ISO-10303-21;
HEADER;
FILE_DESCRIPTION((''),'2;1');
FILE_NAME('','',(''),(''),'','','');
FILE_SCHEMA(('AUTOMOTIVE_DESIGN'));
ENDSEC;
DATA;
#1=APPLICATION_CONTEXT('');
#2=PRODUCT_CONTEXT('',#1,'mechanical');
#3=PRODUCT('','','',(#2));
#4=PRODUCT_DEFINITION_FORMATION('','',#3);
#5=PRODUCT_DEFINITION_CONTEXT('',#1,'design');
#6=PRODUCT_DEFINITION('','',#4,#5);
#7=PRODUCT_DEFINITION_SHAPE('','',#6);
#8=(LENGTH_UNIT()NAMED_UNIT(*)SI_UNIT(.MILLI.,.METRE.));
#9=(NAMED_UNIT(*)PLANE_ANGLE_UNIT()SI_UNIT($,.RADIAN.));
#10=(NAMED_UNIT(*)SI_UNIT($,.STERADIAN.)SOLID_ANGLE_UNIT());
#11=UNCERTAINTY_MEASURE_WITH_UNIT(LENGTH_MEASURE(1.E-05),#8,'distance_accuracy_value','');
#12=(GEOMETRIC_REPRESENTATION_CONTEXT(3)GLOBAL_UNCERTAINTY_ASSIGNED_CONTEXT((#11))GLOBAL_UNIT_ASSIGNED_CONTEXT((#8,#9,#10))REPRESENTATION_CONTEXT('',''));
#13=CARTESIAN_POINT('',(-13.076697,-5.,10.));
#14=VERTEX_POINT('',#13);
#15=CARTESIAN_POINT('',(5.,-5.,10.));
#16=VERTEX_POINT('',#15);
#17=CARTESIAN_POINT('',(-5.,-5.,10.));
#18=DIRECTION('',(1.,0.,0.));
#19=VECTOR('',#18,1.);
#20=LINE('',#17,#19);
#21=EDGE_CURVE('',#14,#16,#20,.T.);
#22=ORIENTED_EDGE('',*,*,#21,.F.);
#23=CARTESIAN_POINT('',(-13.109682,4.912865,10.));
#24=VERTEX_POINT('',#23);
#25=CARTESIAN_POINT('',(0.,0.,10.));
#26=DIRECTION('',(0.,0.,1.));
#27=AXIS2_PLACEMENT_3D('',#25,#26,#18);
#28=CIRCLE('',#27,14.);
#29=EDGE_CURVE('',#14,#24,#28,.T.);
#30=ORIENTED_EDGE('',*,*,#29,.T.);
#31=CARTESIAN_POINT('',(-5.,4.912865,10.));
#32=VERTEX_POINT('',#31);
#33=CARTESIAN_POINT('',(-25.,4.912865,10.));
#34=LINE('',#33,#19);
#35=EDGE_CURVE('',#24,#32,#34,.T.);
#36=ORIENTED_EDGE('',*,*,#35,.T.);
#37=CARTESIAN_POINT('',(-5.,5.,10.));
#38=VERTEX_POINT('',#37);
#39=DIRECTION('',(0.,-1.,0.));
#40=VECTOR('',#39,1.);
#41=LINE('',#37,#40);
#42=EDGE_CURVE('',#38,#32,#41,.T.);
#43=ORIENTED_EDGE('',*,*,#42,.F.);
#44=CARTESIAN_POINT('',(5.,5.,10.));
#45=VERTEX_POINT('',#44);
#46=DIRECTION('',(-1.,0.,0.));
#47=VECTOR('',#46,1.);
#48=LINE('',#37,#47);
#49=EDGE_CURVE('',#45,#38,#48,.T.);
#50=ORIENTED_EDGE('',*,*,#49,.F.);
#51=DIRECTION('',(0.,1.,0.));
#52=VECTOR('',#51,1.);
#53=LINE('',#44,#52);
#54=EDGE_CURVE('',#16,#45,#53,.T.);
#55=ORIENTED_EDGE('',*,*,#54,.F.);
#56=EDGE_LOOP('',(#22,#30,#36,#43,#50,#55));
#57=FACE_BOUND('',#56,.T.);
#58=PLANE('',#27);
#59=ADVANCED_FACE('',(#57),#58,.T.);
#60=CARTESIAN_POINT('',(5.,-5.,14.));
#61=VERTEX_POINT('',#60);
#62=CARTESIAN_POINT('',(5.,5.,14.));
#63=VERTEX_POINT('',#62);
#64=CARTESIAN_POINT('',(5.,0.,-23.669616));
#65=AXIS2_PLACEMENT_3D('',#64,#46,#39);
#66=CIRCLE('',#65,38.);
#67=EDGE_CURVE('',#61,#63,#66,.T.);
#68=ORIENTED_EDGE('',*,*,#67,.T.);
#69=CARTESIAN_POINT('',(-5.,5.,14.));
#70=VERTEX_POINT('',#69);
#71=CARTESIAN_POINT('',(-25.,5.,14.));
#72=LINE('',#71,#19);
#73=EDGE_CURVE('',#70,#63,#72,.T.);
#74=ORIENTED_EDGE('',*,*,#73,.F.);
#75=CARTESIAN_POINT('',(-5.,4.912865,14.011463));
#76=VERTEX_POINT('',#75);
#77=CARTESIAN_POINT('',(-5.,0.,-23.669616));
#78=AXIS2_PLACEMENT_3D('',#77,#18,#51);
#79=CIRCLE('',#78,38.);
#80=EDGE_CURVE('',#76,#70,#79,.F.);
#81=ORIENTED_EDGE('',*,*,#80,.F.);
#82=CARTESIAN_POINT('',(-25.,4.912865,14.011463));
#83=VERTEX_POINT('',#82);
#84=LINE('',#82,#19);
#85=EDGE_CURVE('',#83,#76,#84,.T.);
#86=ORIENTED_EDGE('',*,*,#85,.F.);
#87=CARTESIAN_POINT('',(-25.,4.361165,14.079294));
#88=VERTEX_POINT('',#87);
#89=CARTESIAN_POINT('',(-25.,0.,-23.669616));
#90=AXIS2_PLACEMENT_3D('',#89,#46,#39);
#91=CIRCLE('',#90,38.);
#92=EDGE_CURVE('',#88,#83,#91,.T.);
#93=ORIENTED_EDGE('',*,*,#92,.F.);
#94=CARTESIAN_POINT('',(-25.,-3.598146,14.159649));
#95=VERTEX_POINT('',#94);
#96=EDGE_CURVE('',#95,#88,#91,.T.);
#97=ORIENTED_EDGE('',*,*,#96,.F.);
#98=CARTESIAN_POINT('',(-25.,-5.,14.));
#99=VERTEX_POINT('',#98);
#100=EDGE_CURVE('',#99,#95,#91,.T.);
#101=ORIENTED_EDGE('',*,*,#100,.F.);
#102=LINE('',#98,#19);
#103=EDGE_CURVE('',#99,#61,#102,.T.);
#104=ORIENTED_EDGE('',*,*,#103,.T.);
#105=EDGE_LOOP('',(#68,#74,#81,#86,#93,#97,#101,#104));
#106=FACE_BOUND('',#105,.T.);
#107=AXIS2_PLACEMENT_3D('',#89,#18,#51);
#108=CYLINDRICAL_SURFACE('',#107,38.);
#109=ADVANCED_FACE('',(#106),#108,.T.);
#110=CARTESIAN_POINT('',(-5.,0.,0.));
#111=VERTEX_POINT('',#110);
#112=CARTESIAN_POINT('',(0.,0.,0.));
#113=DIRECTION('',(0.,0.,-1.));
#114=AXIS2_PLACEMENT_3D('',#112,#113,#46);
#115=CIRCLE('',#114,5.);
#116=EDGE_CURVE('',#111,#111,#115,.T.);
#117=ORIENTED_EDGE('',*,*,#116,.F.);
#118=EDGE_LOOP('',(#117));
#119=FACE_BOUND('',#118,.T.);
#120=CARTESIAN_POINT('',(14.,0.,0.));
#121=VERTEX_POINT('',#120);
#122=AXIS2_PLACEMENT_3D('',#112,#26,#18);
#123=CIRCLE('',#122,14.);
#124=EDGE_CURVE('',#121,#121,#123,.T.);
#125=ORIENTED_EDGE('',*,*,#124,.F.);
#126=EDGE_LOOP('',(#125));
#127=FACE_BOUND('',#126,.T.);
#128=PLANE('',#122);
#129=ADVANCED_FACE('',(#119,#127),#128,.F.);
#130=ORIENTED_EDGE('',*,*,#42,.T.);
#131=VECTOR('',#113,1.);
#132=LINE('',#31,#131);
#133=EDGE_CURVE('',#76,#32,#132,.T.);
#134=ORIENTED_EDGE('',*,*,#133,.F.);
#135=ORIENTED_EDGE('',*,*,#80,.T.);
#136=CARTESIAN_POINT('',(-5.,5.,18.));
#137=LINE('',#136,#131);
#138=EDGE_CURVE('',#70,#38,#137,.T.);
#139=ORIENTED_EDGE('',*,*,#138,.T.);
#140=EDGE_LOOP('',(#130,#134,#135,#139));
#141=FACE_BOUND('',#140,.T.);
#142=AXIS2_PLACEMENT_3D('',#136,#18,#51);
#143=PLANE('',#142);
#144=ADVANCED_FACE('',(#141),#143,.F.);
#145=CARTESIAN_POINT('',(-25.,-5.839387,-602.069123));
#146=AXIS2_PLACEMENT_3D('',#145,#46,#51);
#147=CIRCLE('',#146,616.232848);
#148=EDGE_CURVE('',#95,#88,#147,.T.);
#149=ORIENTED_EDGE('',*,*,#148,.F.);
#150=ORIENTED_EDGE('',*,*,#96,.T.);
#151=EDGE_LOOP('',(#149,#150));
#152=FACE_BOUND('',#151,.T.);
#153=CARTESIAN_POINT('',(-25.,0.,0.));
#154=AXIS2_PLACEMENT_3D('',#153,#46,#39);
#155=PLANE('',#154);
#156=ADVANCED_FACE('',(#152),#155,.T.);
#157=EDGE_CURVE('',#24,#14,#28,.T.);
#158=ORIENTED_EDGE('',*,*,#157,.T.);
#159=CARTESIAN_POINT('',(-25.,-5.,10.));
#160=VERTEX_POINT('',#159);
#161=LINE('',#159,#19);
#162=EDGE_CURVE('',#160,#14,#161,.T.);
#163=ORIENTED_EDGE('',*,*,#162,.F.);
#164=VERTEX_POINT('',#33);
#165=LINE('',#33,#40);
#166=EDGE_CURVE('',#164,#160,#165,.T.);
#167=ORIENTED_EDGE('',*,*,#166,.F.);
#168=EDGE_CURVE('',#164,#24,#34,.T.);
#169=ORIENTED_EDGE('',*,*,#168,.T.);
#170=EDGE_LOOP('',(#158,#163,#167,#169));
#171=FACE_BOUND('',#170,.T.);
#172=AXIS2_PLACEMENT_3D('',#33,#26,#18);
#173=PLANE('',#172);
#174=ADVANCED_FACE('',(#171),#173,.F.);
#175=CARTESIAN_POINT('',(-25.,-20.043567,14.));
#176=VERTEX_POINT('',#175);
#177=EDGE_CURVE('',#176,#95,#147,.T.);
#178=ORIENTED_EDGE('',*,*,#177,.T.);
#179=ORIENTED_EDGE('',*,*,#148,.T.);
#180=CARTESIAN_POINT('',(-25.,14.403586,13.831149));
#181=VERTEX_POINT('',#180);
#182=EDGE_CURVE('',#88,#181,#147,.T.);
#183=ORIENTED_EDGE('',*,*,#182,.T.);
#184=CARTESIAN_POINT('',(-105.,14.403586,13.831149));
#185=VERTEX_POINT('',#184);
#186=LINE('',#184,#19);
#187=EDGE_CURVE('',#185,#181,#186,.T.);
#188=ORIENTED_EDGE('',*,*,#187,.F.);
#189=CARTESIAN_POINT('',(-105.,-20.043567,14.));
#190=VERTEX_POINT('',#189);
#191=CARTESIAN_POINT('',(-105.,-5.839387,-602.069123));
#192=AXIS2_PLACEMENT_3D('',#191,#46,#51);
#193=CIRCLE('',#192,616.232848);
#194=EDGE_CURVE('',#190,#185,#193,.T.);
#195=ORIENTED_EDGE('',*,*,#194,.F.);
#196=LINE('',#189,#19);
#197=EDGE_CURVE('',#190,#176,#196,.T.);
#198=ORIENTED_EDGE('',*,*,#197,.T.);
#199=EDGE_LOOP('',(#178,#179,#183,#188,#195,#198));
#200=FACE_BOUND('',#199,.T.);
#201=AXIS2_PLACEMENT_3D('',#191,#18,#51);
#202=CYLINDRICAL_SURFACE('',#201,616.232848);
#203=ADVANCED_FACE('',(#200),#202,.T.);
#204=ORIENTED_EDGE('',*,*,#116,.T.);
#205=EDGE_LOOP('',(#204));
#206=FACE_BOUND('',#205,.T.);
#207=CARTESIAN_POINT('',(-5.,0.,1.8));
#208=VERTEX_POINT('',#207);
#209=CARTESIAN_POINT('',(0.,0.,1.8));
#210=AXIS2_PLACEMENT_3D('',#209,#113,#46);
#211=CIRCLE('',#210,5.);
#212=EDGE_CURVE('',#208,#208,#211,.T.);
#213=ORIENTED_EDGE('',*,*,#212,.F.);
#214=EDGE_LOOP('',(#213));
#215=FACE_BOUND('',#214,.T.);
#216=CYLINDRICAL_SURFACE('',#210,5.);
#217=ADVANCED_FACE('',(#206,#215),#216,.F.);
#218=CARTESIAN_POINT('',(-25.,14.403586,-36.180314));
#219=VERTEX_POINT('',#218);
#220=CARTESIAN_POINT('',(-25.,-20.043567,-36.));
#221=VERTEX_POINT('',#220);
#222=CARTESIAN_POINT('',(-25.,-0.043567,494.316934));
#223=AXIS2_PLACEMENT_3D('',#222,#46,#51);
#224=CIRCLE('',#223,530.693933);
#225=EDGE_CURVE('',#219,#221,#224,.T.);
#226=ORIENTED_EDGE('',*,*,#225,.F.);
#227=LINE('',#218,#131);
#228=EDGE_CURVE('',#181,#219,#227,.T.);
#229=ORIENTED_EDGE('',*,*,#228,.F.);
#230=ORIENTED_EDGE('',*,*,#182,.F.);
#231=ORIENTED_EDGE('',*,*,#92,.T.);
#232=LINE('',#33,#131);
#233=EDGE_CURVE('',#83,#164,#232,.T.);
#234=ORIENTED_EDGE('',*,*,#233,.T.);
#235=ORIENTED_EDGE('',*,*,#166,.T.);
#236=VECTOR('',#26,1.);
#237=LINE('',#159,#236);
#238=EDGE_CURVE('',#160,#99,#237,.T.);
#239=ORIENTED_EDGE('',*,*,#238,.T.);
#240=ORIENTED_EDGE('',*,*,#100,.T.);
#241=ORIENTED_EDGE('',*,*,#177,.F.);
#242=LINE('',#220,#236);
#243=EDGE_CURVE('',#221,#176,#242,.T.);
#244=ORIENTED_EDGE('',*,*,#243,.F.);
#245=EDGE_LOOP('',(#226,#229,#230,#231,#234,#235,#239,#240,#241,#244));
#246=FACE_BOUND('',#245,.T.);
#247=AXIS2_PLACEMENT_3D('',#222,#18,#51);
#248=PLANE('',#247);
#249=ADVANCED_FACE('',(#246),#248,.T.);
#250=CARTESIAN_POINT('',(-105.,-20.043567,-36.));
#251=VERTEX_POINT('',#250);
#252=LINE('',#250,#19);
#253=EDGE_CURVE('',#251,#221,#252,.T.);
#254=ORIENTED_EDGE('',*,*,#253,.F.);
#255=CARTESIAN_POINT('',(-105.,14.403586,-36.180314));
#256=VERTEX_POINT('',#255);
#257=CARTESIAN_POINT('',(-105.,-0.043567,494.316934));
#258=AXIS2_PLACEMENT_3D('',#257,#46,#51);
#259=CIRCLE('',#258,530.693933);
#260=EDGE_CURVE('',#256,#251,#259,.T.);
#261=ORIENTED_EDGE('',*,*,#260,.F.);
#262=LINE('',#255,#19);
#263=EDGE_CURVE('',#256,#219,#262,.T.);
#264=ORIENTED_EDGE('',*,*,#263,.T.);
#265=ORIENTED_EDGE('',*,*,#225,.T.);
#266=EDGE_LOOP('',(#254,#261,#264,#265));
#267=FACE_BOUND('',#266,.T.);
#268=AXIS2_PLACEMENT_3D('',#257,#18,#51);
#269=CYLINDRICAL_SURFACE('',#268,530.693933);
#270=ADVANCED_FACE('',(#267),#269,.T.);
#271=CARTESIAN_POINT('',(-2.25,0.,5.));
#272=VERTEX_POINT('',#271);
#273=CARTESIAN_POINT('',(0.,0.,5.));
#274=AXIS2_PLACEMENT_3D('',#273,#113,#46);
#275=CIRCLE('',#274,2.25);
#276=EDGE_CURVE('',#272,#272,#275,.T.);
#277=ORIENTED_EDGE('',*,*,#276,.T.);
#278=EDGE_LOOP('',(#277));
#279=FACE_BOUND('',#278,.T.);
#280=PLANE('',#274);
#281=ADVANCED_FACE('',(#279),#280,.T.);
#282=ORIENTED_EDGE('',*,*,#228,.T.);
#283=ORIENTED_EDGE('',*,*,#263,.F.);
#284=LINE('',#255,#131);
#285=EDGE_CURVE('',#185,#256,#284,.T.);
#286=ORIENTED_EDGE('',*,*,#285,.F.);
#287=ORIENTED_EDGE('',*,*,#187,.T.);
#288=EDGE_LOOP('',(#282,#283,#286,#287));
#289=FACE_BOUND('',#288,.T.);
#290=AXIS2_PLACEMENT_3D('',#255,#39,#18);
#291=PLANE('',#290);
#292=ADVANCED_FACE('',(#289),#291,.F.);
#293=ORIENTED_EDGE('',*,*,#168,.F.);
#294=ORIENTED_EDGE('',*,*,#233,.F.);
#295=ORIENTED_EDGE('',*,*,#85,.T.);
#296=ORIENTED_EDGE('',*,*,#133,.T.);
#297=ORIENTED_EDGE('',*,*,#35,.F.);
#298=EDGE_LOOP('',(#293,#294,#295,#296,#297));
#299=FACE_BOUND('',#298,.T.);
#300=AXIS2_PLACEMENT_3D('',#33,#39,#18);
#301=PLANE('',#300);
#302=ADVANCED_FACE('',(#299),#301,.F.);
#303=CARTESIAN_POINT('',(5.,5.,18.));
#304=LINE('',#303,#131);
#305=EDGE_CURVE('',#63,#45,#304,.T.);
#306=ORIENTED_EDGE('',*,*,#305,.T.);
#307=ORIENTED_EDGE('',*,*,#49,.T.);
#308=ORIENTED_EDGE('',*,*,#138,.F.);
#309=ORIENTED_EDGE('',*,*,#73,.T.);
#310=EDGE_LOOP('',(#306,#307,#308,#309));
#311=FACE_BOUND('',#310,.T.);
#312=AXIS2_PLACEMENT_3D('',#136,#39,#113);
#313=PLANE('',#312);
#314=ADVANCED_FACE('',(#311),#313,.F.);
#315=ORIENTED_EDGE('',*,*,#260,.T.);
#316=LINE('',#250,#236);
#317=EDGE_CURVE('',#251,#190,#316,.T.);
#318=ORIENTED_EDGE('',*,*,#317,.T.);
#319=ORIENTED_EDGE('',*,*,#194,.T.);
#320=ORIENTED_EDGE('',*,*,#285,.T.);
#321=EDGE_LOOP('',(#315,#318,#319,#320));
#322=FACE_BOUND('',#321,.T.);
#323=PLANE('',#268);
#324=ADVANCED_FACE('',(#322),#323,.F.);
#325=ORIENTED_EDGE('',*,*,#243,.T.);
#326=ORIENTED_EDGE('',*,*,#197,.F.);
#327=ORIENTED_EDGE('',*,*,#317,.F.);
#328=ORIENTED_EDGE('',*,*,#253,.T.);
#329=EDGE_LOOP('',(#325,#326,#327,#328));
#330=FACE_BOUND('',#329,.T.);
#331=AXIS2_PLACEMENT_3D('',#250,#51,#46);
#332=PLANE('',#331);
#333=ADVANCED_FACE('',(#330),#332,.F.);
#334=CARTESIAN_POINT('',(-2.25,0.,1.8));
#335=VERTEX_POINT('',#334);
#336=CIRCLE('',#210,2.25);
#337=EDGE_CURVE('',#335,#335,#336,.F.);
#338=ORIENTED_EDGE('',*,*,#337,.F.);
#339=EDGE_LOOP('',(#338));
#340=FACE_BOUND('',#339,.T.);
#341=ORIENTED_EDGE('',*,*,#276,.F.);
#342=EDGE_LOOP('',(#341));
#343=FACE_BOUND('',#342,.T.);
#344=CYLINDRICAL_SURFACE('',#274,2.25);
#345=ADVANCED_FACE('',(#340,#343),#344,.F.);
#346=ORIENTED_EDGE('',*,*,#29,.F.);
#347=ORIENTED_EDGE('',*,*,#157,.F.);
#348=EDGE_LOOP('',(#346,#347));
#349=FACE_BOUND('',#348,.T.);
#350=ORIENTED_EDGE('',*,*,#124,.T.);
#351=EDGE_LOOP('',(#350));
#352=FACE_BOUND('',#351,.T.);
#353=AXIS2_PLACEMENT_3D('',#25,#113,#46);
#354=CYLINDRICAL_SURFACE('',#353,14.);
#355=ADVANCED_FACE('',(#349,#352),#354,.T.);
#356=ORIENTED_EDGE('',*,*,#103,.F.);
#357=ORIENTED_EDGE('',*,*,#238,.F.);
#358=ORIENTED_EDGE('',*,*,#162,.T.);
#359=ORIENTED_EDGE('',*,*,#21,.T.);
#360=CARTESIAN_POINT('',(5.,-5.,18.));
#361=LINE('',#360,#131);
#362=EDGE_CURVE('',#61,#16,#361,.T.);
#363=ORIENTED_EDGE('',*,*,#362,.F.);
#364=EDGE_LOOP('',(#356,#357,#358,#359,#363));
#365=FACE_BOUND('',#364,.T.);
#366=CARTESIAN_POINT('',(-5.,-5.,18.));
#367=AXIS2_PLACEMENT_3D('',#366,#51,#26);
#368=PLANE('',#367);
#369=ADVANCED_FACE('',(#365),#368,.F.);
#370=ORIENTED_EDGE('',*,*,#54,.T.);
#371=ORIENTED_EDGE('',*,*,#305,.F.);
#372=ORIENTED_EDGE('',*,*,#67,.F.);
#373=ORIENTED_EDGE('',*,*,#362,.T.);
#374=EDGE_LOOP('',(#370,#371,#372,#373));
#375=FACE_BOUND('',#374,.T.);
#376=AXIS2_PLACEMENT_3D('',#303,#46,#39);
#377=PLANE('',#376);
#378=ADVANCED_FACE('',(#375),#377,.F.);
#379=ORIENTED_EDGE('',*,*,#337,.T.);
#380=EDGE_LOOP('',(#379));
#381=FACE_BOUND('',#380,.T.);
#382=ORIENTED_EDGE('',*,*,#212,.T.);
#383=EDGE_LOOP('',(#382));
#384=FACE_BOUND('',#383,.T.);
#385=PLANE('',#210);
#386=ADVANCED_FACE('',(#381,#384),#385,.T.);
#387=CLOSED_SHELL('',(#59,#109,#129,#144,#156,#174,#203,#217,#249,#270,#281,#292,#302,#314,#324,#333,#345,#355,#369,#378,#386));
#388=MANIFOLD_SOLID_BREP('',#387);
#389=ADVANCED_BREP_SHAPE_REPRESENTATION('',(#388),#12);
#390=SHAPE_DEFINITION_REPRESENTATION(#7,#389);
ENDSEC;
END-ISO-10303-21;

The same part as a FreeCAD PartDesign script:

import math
import FreeCAD as App
import Part
import Sketcher


def add_polygon(sketch, points):
    """Adds a closed chain of lines whose ends are joined by coincident constraints."""
    first, n = sketch.GeometryCount, len(points)
    for a, b in zip(points, points[1:] + points[:1]):
        sketch.addGeometry(Part.LineSegment(App.Vector(*a, 0), App.Vector(*b, 0)), False)
    for i in range(n):
        sketch.addConstraint(Sketcher.Constraint("Coincident", first + i, 2, first + (i + 1) % n, 1))

doc = App.newDocument("Part")
params = doc.addObject("Spreadsheet::Sheet", "Params")
for row, (alias, value) in enumerate([
    ("sketch1_diameter", "28 mm"),
    ("pad1_length", "10 mm"),
    ("sketch2_diameter", "4.5 mm"),
    ("pocket1_length", "5 mm"),
    ("sketch3_diameter", "10 mm"),
    ("pocket2_length", "1.8 mm"),
    ("sketch4_width", "10 mm"),
    ("pad2_length", "8 mm"),
    ("sketch5_height", "8 mm"),
    ("pad3_length", "20 mm"),
    ("sketch6_radius", "38 mm"),
    ("sketch6_width", "10 mm"),
    ("sketch6_height", "4 mm"),
    ("pocket3_length", "30 mm"),
    ("sketch7_height", "50 mm"),
    ("sketch7_width", "20 mm"),
    ("pad4_length", "80 mm"),
], start=1):
    params.set(f"A{row}", alias)
    params.set(f"B{row}", "=" + value)
    params.setAlias(f"B{row}", alias)

body = doc.addObject("PartDesign::Body", "Body")

# Sketch on XY plane
sketch1 = body.newObject("Sketcher::SketchObject", "Sketch")
sketch1.AttachmentSupport = (doc.getObject("XY_Plane"), [""])
sketch1.MapMode = "FlatFace"
sketch1.addGeometry(Part.Circle(App.Vector(0, 0, 0), App.Vector(0, 0, 1), 14), False)
sketch1.addConstraint(Sketcher.Constraint("Coincident", 0, 3, -1, 1))
sketch1.addConstraint(Sketcher.Constraint("Diameter", 0, 28.0))
sketch1.setExpression("Constraints[1]", "Params.sketch1_diameter")
pad1 = body.newObject("PartDesign::Pad", "Pad")
pad1.Profile = sketch1
pad1.setExpression("Length", "Params.pad1_length")

# Sketch on XY plane
sketch2 = body.newObject("Sketcher::SketchObject", "Sketch001")
sketch2.AttachmentSupport = (doc.getObject("XY_Plane"), [""])
sketch2.MapMode = "FlatFace"
sketch2.addGeometry(Part.Circle(App.Vector(0, 0, 0), App.Vector(0, 0, 1), 2.25), False)
sketch2.addConstraint(Sketcher.Constraint("Coincident", 0, 3, -1, 1))
sketch2.addConstraint(Sketcher.Constraint("Diameter", 0, 4.5))
sketch2.setExpression("Constraints[1]", "Params.sketch2_diameter")
pocket1 = body.newObject("PartDesign::Pocket", "Pocket")
pocket1.Profile = sketch2
pocket1.setExpression("Length", "Params.pocket1_length")
pocket1.Reversed = True

# Sketch on XY plane
sketch3 = body.newObject("Sketcher::SketchObject", "Sketch002")
sketch3.AttachmentSupport = (doc.getObject("XY_Plane"), [""])
sketch3.MapMode = "FlatFace"
sketch3.addGeometry(Part.Circle(App.Vector(0, 0, 0), App.Vector(0, 0, 1), 5), False)
sketch3.addConstraint(Sketcher.Constraint("Coincident", 0, 3, -1, 1))
sketch3.addConstraint(Sketcher.Constraint("Diameter", 0, 10.0))
sketch3.setExpression("Constraints[1]", "Params.sketch3_diameter")
pocket2 = body.newObject("PartDesign::Pocket", "Pocket001")
pocket2.Profile = sketch3
pocket2.setExpression("Length", "Params.pocket2_length")
pocket2.Reversed = True

# Sketch on XY plane
sketch4 = body.newObject("Sketcher::SketchObject", "Sketch003")
sketch4.AttachmentSupport = (doc.getObject("XY_Plane"), [""])
sketch4.MapMode = "FlatFace"
sketch4.AttachmentOffset = App.Placement(App.Vector(0, 0, 10), App.Rotation())
add_polygon(sketch4, [(-5, 5), (-5, -5), (5, -5), (5, 5)])  # lines 0-3
sketch4.addConstraint(Sketcher.Constraint("Vertical", 0))
sketch4.addConstraint(Sketcher.Constraint("Horizontal", 1))
sketch4.addConstraint(Sketcher.Constraint("Vertical", 2))
sketch4.addConstraint(Sketcher.Constraint("Horizontal", 3))
sketch4.addConstraint(Sketcher.Constraint("Symmetric", 0, 2, 2, 2, -1, 1))
sketch4.addConstraint(Sketcher.Constraint("Equal", 3, 0))
sketch4.addConstraint(Sketcher.Constraint("DistanceX", 1, 1, 1, 2, 10.0))
sketch4.setExpression("Constraints[10]", "Params.sketch4_width")
pad2 = body.newObject("PartDesign::Pad", "Pad001")
pad2.Profile = sketch4
pad2.setExpression("Length", "Params.pad2_length")

# Sketch on YZ plane
sketch5 = body.newObject("Sketcher::SketchObject", "Sketch004")
sketch5.AttachmentSupport = (doc.getObject("YZ_Plane"), [""])
sketch5.MapMode = "FlatFace"
sketch5.AttachmentOffset = App.Placement(App.Vector(0, 0, -5), App.Rotation())
add_polygon(sketch5, [(4.912865, 10), (-5, 10), (-5, 18), (4.912865, 18)])  # lines 0-3
sketch5.addConstraint(Sketcher.Constraint("Horizontal", 0))
sketch5.addConstraint(Sketcher.Constraint("Vertical", 1))
sketch5.addConstraint(Sketcher.Constraint("Horizontal", 2))
sketch5.addConstraint(Sketcher.Constraint("Vertical", 3))
sketch5.addConstraint(Sketcher.Constraint("DistanceY", 1, 1, 1, 2, 8.0))
sketch5.addConstraint(Sketcher.Constraint("DistanceX", 0, 2, -1, 1, 5.0))
sketch5.addConstraint(Sketcher.Constraint("DistanceY", -1, 1, 0, 2, 10.0))
sketch5.addConstraint(Sketcher.Constraint("DistanceX", 0, 2, 0, 1, 9.912865))
sketch5.setExpression("Constraints[8]", "Params.sketch5_height")
pad3 = body.newObject("PartDesign::Pad", "Pad002")
pad3.Profile = sketch5
pad3.setExpression("Length", "Params.pad3_length")
pad3.Reversed = True

# Sketch on YZ plane
sketch6 = body.newObject("Sketcher::SketchObject", "Sketch005")
sketch6.AttachmentSupport = (doc.getObject("YZ_Plane"), [""])
sketch6.MapMode = "FlatFace"
sketch6.AttachmentOffset = App.Placement(App.Vector(0, 0, 5), App.Rotation())
sketch6.addGeometry(Part.LineSegment(App.Vector(5, 18, 0), App.Vector(-5, 18, 0)), False)
sketch6.addGeometry(Part.LineSegment(App.Vector(-5, 18, 0), App.Vector(-5, 14, 0)), False)
sketch6.addGeometry(Part.ArcOfCircle(Part.Circle(App.Vector(0, -23.669616, 0), App.Vector(0, 0, 1), 38), math.radians(82.439157), math.radians(97.560843)), False)
sketch6.addGeometry(Part.LineSegment(App.Vector(5, 14, 0), App.Vector(5, 18, 0)), False)
sketch6.addConstraint(Sketcher.Constraint("Coincident", 0, 2, 1, 1))
sketch6.addConstraint(Sketcher.Constraint("Coincident", 1, 2, 2, 2))
sketch6.addConstraint(Sketcher.Constraint("Coincident", 2, 1, 3, 1))
sketch6.addConstraint(Sketcher.Constraint("Coincident", 3, 2, 0, 1))
sketch6.addConstraint(Sketcher.Constraint("Horizontal", 0))
sketch6.addConstraint(Sketcher.Constraint("Vertical", 1))
sketch6.addConstraint(Sketcher.Constraint("Vertical", 3))
sketch6.addConstraint(Sketcher.Constraint("Symmetric", 1, 2, 2, 1, -2))
sketch6.addConstraint(Sketcher.Constraint("Radius", 2, 38.0))
sketch6.addConstraint(Sketcher.Constraint("DistanceX", 0, 2, 0, 1, 10.0))
sketch6.addConstraint(Sketcher.Constraint("DistanceY", 1, 2, 1, 1, 4.0))
sketch6.addConstraint(Sketcher.Constraint("DistanceY", -1, 1, 0, 2, 18.0))
sketch6.setExpression("Constraints[8]", "Params.sketch6_radius")
sketch6.setExpression("Constraints[9]", "Params.sketch6_width")
sketch6.setExpression("Constraints[10]", "Params.sketch6_height")
pocket3 = body.newObject("PartDesign::Pocket", "Pocket002")
pocket3.Profile = sketch6
pocket3.setExpression("Length", "Params.pocket3_length")

# Sketch on YZ plane
sketch7 = body.newObject("Sketcher::SketchObject", "Sketch006")
sketch7.AttachmentSupport = (doc.getObject("YZ_Plane"), [""])
sketch7.MapMode = "FlatFace"
sketch7.AttachmentOffset = App.Placement(App.Vector(0, 0, -25), App.Rotation())
sketch7.addGeometry(Part.LineSegment(App.Vector(14.403586, 13.831149, 0), App.Vector(14.403586, -36.180314, 0)), False)
sketch7.addGeometry(Part.ArcOfCircle(Part.Circle(App.Vector(-0.043567, 494.316935, 0), App.Vector(0, 0, 1), 530.693934), math.radians(-92.159789), math.radians(-88.440036)), False)
sketch7.addGeometry(Part.LineSegment(App.Vector(-20.043567, -36, 0), App.Vector(-20.043567, 14, 0)), False)
sketch7.addGeometry(Part.ArcOfCircle(Part.Circle(App.Vector(-5.839387, -602.069124, 0), App.Vector(0, 0, 1), 616.232849), math.radians(88.117521), math.radians(91.320786)), False)
sketch7.addConstraint(Sketcher.Constraint("Coincident", 0, 2, 1, 2))
sketch7.addConstraint(Sketcher.Constraint("Coincident", 1, 1, 2, 1))
sketch7.addConstraint(Sketcher.Constraint("Coincident", 2, 2, 3, 2))
sketch7.addConstraint(Sketcher.Constraint("Coincident", 3, 1, 0, 1))
sketch7.addConstraint(Sketcher.Constraint("Vertical", 0))
sketch7.addConstraint(Sketcher.Constraint("Vertical", 2))
sketch7.addConstraint(Sketcher.Constraint("DistanceY", 2, 1, 2, 2, 50.0))
sketch7.addConstraint(Sketcher.Constraint("DistanceY", 1, 1, -1, 1, 36.0))
sketch7.addConstraint(Sketcher.Constraint("DistanceX", 1, 1, 1, 3, 20.0))
sketch7.addConstraint(Sketcher.Constraint("Radius", 3, 616.232849))
sketch7.addConstraint(Sketcher.Constraint("Radius", 1, 530.693934))
sketch7.addConstraint(Sketcher.Constraint("DistanceY", 0, 2, 0, 1, 50.011463))
sketch7.addConstraint(Sketcher.Constraint("DistanceX", 3, 3, 1, 3, 5.79582))
sketch7.addConstraint(Sketcher.Constraint("DistanceX", 1, 3, -1, 1, 0.043567))
sketch7.setExpression("Constraints[6]", "Params.sketch7_height")
sketch7.setExpression("Constraints[8]", "Params.sketch7_width")
pad4 = body.newObject("PartDesign::Pad", "Pad003")
pad4.Profile = sketch7
pad4.setExpression("Length", "Params.pad4_length")
pad4.Reversed = True

doc.recompute()
